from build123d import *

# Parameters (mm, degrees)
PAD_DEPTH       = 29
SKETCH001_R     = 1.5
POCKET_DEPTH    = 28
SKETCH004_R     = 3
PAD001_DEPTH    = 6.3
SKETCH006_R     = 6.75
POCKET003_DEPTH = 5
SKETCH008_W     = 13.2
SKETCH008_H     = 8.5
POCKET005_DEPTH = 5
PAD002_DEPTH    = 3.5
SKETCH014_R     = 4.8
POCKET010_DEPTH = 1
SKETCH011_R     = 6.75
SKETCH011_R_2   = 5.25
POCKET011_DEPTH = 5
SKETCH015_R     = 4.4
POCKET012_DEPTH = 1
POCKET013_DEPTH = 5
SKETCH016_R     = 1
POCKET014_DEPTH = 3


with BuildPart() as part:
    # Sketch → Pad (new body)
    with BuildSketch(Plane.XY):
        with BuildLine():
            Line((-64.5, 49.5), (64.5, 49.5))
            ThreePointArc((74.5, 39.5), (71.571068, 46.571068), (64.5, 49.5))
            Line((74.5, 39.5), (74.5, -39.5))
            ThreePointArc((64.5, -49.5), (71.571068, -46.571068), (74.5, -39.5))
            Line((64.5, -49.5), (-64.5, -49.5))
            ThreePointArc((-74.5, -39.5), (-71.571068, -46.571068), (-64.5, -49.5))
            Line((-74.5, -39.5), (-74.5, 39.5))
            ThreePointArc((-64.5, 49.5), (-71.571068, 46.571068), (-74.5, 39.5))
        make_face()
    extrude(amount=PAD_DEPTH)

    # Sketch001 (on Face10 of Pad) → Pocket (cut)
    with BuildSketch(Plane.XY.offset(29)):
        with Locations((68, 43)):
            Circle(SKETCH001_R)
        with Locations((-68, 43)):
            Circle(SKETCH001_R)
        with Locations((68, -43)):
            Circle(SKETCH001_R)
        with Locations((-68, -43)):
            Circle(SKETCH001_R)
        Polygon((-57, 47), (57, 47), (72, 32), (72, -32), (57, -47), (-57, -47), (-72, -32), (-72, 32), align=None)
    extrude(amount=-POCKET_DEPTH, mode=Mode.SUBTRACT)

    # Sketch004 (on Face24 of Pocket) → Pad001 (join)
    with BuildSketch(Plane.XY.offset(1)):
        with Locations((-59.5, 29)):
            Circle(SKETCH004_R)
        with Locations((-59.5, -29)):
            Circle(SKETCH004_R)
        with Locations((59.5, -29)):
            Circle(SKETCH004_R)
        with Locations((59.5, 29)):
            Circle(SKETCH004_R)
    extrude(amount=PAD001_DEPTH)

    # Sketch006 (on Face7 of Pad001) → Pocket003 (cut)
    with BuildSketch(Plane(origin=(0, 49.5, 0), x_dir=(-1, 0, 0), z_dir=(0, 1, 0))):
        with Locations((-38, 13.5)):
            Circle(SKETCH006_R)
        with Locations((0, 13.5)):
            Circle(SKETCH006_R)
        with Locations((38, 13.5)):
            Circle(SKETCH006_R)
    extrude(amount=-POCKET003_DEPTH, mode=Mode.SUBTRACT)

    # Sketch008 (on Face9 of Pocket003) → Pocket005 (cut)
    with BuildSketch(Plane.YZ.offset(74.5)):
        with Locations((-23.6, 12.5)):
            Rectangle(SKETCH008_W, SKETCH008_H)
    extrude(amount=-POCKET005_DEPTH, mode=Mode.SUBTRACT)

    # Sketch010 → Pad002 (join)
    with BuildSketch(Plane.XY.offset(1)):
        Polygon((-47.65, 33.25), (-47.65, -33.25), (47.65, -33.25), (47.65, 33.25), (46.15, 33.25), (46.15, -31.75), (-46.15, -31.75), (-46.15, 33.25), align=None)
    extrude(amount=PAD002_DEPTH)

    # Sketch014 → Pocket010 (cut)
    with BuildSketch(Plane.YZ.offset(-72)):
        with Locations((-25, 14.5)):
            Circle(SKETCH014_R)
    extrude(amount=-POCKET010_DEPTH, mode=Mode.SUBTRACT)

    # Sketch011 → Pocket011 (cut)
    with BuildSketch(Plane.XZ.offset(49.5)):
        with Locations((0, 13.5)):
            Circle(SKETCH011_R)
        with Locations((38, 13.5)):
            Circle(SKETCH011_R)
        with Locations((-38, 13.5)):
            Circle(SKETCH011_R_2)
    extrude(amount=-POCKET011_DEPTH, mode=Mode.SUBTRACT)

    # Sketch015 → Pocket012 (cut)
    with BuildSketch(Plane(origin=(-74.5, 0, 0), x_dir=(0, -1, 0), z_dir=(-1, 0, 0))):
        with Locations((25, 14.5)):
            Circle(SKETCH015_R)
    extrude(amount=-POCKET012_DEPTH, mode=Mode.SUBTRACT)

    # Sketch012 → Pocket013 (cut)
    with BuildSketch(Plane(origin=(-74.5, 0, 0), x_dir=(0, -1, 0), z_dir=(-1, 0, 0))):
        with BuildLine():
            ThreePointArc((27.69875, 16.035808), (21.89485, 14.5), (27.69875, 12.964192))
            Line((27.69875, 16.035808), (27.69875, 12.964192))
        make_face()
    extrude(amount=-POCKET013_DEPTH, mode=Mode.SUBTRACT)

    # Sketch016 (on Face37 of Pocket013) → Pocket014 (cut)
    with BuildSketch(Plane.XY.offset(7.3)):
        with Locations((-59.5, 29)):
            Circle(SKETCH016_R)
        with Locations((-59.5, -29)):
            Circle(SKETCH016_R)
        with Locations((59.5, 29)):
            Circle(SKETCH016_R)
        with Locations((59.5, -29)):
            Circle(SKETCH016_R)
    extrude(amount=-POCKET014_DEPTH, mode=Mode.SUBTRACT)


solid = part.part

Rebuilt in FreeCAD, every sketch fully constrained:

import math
import FreeCAD as App
import Part
import Sketcher

doc = App.newDocument("Part")
body = doc.addObject("PartDesign::Body", "Body")

# Sketch on XY plane
sketch1 = doc.addObject("Sketcher::SketchObject", "Sketch")
body.addObject(sketch1)
sketch1.AttachmentSupport = (doc.XY_Plane, [""])
sketch1.MapMode = "FlatFace"
sketch1.addGeometry([
    Part.LineSegment(App.Vector(64, 50, 0), App.Vector(-64, 50, 0)),  # 0
    Part.ArcOfCircle(Part.Circle(App.Vector(-65, 40, 0), App.Vector(0, 0, 1), 10), math.radians(90), math.radians(180)),  # 1
    Part.LineSegment(App.Vector(-74, 40, 0), App.Vector(-74, -40, 0)),  # 2
    Part.ArcOfCircle(Part.Circle(App.Vector(-65, -40, 0), App.Vector(0, 0, 1), 10), math.radians(180), math.radians(270)),  # 3
    Part.LineSegment(App.Vector(-64, -50, 0), App.Vector(64, -50, 0)),  # 4
    Part.ArcOfCircle(Part.Circle(App.Vector(65, -40, 0), App.Vector(0, 0, 1), 10), math.radians(-90), math.radians(0)),  # 5
    Part.LineSegment(App.Vector(74, -40, 0), App.Vector(74, 40, 0)),  # 6
    Part.ArcOfCircle(Part.Circle(App.Vector(65, 40, 0), App.Vector(0, 0, 1), 10), math.radians(0), math.radians(90)),  # 7
], False)
sketch1.addConstraint([
    Sketcher.Constraint("Tangent", 0, 2, 1, 1),
    Sketcher.Constraint("Tangent", 1, 2, 2, 1),
    Sketcher.Constraint("Tangent", 2, 2, 3, 1),
    Sketcher.Constraint("Tangent", 3, 2, 4, 1),
    Sketcher.Constraint("Tangent", 4, 2, 5, 1),
    Sketcher.Constraint("Tangent", 5, 2, 6, 1),
    Sketcher.Constraint("Tangent", 6, 2, 7, 1),
    Sketcher.Constraint("Tangent", 7, 2, 0, 1),
    Sketcher.Constraint("Horizontal", 0),
    Sketcher.Constraint("Vertical", 2),
    Sketcher.Constraint("Horizontal", 4),
    Sketcher.Constraint("Vertical", 6),
    Sketcher.Constraint("Equal", 1, 3),
    Sketcher.Constraint("Equal", 3, 5),
    Sketcher.Constraint("Equal", 5, 7),
    Sketcher.Constraint("Symmetric", 1, 3, 5, 3, -1, 1),
    Sketcher.Constraint("Radius", 1, 9.999999),
    Sketcher.Constraint("DistanceX", 0, 2, 0, 1, 129.0),
    Sketcher.Constraint("DistanceY", 2, 2, 2, 1, 79.0),
])
pad1 = doc.addObject("PartDesign::Pad", "Pad")
body.addObject(pad1)
pad1.Profile = sketch1
pad1.Length = 29

# Sketch on XY plane
sketch2 = doc.addObject("Sketcher::SketchObject", "Sketch001")
body.addObject(sketch2)
sketch2.AttachmentSupport = (doc.XY_Plane, [""])
sketch2.MapMode = "FlatFace"
sketch2.AttachmentOffset = App.Placement(App.Vector(0, 0, 29), App.Rotation())
sketch2.addGeometry([
    Part.Circle(App.Vector(68, 43, 0), App.Vector(0, 0, 1), 1.5),  # 0
    Part.Circle(App.Vector(-68, 43, 0), App.Vector(0, 0, 1), 1.5),  # 1
    Part.Circle(App.Vector(68, -43, 0), App.Vector(0, 0, 1), 1.5),  # 2
    Part.Circle(App.Vector(-68, -43, 0), App.Vector(0, 0, 1), 1.5),  # 3
    Part.LineSegment(App.Vector(57, 47, 0), App.Vector(-57, 47, 0)),  # 4
    Part.LineSegment(App.Vector(-57, 47, 0), App.Vector(-72, 32, 0)),  # 5
    Part.LineSegment(App.Vector(-72, 32, 0), App.Vector(-72, -32, 0)),  # 6
    Part.LineSegment(App.Vector(-72, -32, 0), App.Vector(-57, -47, 0)),  # 7
    Part.LineSegment(App.Vector(-57, -47, 0), App.Vector(57, -47, 0)),  # 8
    Part.LineSegment(App.Vector(57, -47, 0), App.Vector(72, -32, 0)),  # 9
    Part.LineSegment(App.Vector(72, -32, 0), App.Vector(72, 32, 0)),  # 10
    Part.LineSegment(App.Vector(72, 32, 0), App.Vector(57, 47, 0)),  # 11
], False)
sketch2.addConstraint([
    Sketcher.Constraint("Coincident", 4, 2, 5, 1),
    Sketcher.Constraint("Coincident", 5, 2, 6, 1),
    Sketcher.Constraint("Coincident", 6, 2, 7, 1),
    Sketcher.Constraint("Coincident", 7, 2, 8, 1),
    Sketcher.Constraint("Coincident", 8, 2, 9, 1),
    Sketcher.Constraint("Coincident", 9, 2, 10, 1),
    Sketcher.Constraint("Coincident", 10, 2, 11, 1),
    Sketcher.Constraint("Coincident", 11, 2, 4, 1),
    Sketcher.Constraint("Horizontal", 4),
    Sketcher.Constraint("Vertical", 6),
    Sketcher.Constraint("Horizontal", 8),
    Sketcher.Constraint("Vertical", 10),
    Sketcher.Constraint("Equal", 0, 1),
    Sketcher.Constraint("Equal", 1, 2),
    Sketcher.Constraint("Equal", 2, 3),
    Sketcher.Constraint("Symmetric", 1, 3, 2, 3, -1, 1),
    Sketcher.Constraint("Symmetric", 0, 3, 3, 3, -1, 1),
    Sketcher.Constraint("Symmetric", 4, 2, 8, 2, -1, 1),
    Sketcher.Constraint("Symmetric", 5, 2, 9, 2, -1, 1),
    Sketcher.Constraint("Symmetric", 0, 3, 1, 3, -2),
    Sketcher.Constraint("Perpendicular", 5, 7),
    Sketcher.Constraint("Perpendicular", 9, 11),
    Sketcher.Constraint("Horizontal", 6, 2, 9, 2),
    Sketcher.Constraint("Horizontal", 5, 2, 10, 2),
    Sketcher.Constraint("Vertical", 4, 2, 7, 2),
    Sketcher.Constraint("Diameter", 0, 3.0),
    Sketcher.Constraint("DistanceX", 4, 2, 4, 1, 114.0),
    Sketcher.Constraint("DistanceY", 6, 2, 6, 1, 64.0),
    Sketcher.Constraint("DistanceX", -1, 1, 0, 3, 68.0),
    Sketcher.Constraint("DistanceY", -1, 1, 0, 3, 43.0),
    Sketcher.Constraint("DistanceY", -1, 1, 4, 2, 47.0),
])
pocket1 = doc.addObject("PartDesign::Pocket", "Pocket")
body.addObject(pocket1)
pocket1.Profile = sketch2
pocket1.Length = 28

# Sketch on XY plane
sketch3 = doc.addObject("Sketcher::SketchObject", "Sketch002")
body.addObject(sketch3)
sketch3.AttachmentSupport = (doc.XY_Plane, [""])
sketch3.MapMode = "FlatFace"
sketch3.AttachmentOffset = App.Placement(App.Vector(0, 0, 1), App.Rotation())
sketch3.addGeometry([
    Part.Circle(App.Vector(-59.5, 29, 0), App.Vector(0, 0, 1), 3),
    Part.Circle(App.Vector(-59.5, -29, 0), App.Vector(0, 0, 1), 3),
    Part.Circle(App.Vector(59.5, -29, 0), App.Vector(0, 0, 1), 3),
    Part.Circle(App.Vector(59.5, 29, 0), App.Vector(0, 0, 1), 3),
], False)
sketch3.addConstraint([
    Sketcher.Constraint("Equal", 0, 1),
    Sketcher.Constraint("Equal", 1, 2),
    Sketcher.Constraint("Equal", 2, 3),
    Sketcher.Constraint("Symmetric", 0, 3, 2, 3, -1, 1),
    Sketcher.Constraint("Symmetric", 1, 3, 3, 3, -1, 1),
    Sketcher.Constraint("Symmetric", 1, 3, 2, 3, -2),
    Sketcher.Constraint("Diameter", 0, 6.0),
    Sketcher.Constraint("DistanceY", -1, 1, 0, 3, 29.0),
    Sketcher.Constraint("DistanceX", 1, 3, 2, 3, 119.0),
])
pad2 = doc.addObject("PartDesign::Pad", "Pad001")
body.addObject(pad2)
pad2.Profile = sketch3
pad2.Length = 6.3

# Sketch on XZ plane
sketch4 = doc.addObject("Sketcher::SketchObject", "Sketch003")
body.addObject(sketch4)
sketch4.AttachmentSupport = (doc.XZ_Plane, [""])
sketch4.MapMode = "FlatFace"
sketch4.AttachmentOffset = App.Placement(App.Vector(0, 0, -49.5), App.Rotation())
sketch4.addGeometry([
    Part.Circle(App.Vector(38, 14, 0), App.Vector(0, 0, 1), 7),
    Part.Circle(App.Vector(0, 14, 0), App.Vector(0, 0, 1), 7),
    Part.Circle(App.Vector(-38, 14, 0), App.Vector(0, 0, 1), 7),
], False)
sketch4.addConstraint([
    Sketcher.Constraint("Equal", 0, 1),
    Sketcher.Constraint("Equal", 1, 2),
    Sketcher.Constraint("Symmetric", 0, 3, 2, 3, -2),
    Sketcher.Constraint("PointOnObject", 1, 3, -2),
    Sketcher.Constraint("Horizontal", 0, 3, 1, 3),
    Sketcher.Constraint("Diameter", 0, 13.5),
    Sketcher.Constraint("DistanceX", -1, 1, 0, 3, 38.0),
    Sketcher.Constraint("DistanceY", -1, 1, 0, 3, 13.5),
])
pocket2 = doc.addObject("PartDesign::Pocket", "Pocket001")
body.addObject(pocket2)
pocket2.Profile = sketch4
pocket2.Length = 5
pocket2.Reversed = True

# Sketch on YZ plane
sketch5 = doc.addObject("Sketcher::SketchObject", "Sketch004")
body.addObject(sketch5)
sketch5.AttachmentSupport = (doc.YZ_Plane, [""])
sketch5.MapMode = "FlatFace"
sketch5.AttachmentOffset = App.Placement(App.Vector(0, 0, 74.5), App.Rotation())
sketch5.addGeometry([
    Part.LineSegment(App.Vector(-30, 17, 0), App.Vector(-30, 8, 0)),
    Part.LineSegment(App.Vector(-30, 8, 0), App.Vector(-17, 8, 0)),
    Part.LineSegment(App.Vector(-17, 8, 0), App.Vector(-17, 17, 0)),
    Part.LineSegment(App.Vector(-17, 17, 0), App.Vector(-30, 17, 0)),
], False)
sketch5.addConstraint([
    Sketcher.Constraint("Coincident", 0, 2, 1, 1),
    Sketcher.Constraint("Coincident", 1, 2, 2, 1),
    Sketcher.Constraint("Coincident", 2, 2, 3, 1),
    Sketcher.Constraint("Coincident", 3, 2, 0, 1),
    Sketcher.Constraint("Vertical", 0),
    Sketcher.Constraint("Horizontal", 1),
    Sketcher.Constraint("Vertical", 2),
    Sketcher.Constraint("Horizontal", 3),
    Sketcher.Constraint("DistanceX", 1, 1, 1, 2, 13.2),
    Sketcher.Constraint("DistanceY", 0, 2, 0, 1, 8.5),
    Sketcher.Constraint("DistanceX", 1, 2, -1, 1, 17.0),
    Sketcher.Constraint("DistanceY", -1, 1, 0, 2, 8.25),
])
pocket3 = doc.addObject("PartDesign::Pocket", "Pocket002")
body.addObject(pocket3)
pocket3.Profile = sketch5
pocket3.Length = 5

# Sketch on XY plane
sketch6 = doc.addObject("Sketcher::SketchObject", "Sketch005")
body.addObject(sketch6)
sketch6.AttachmentSupport = (doc.XY_Plane, [""])
sketch6.MapMode = "FlatFace"
sketch6.AttachmentOffset = App.Placement(App.Vector(0, 0, 1), App.Rotation())
sketch6.addGeometry([
    Part.LineSegment(App.Vector(-47.6, 33.2, 0), App.Vector(-47.6, -33.2, 0)),  # 0
    Part.LineSegment(App.Vector(-47.6, -33.2, 0), App.Vector(47.6, -33.2, 0)),  # 1
    Part.LineSegment(App.Vector(47.6, -33.2, 0), App.Vector(47.6, 33.2, 0)),  # 2
    Part.LineSegment(App.Vector(47.6, 33.2, 0), App.Vector(46.1, 33.2, 0)),  # 3
    Part.LineSegment(App.Vector(46.1, 33.2, 0), App.Vector(46.1, -31.8, 0)),  # 4
    Part.LineSegment(App.Vector(46.1, -31.8, 0), App.Vector(-46.1, -31.8, 0)),  # 5
    Part.LineSegment(App.Vector(-46.1, -31.8, 0), App.Vector(-46.1, 33.2, 0)),  # 6
    Part.LineSegment(App.Vector(-46.1, 33.2, 0), App.Vector(-47.6, 33.2, 0)),  # 7
], False)
sketch6.addConstraint([
    Sketcher.Constraint("Coincident", 0, 2, 1, 1),
    Sketcher.Constraint("Coincident", 1, 2, 2, 1),
    Sketcher.Constraint("Coincident", 2, 2, 3, 1),
    Sketcher.Constraint("Coincident", 3, 2, 4, 1),
    Sketcher.Constraint("Coincident", 4, 2, 5, 1),
    Sketcher.Constraint("Coincident", 5, 2, 6, 1),
    Sketcher.Constraint("Coincident", 6, 2, 7, 1),
    Sketcher.Constraint("Coincident", 7, 2, 0, 1),
    Sketcher.Constraint("Vertical", 0),
    Sketcher.Constraint("Horizontal", 1),
    Sketcher.Constraint("Vertical", 2),
    Sketcher.Constraint("Horizontal", 3),
    Sketcher.Constraint("Vertical", 4),
    Sketcher.Constraint("Horizontal", 5),
    Sketcher.Constraint("Vertical", 6),
    Sketcher.Constraint("Horizontal", 7),
    Sketcher.Constraint("Symmetric", 0, 2, 2, 2, -1, 1),
    Sketcher.Constraint("Symmetric", 3, 2, 6, 2, -2),
    Sketcher.Constraint("DistanceY", 4, 2, 4, 1, 65.0),
    Sketcher.Constraint("DistanceX", 1, 1, 1, 2, 95.3),
    Sketcher.Constraint("DistanceX", 3, 2, 3, 1, 1.5),
    Sketcher.Constraint("DistanceY", 0, 2, 0, 1, 66.5),
])
pad3 = doc.addObject("PartDesign::Pad", "Pad002")
body.addObject(pad3)
pad3.Profile = sketch6
pad3.Length = 3.5

# Sketch on YZ plane
sketch7 = doc.addObject("Sketcher::SketchObject", "Sketch006")
body.addObject(sketch7)
sketch7.AttachmentSupport = (doc.YZ_Plane, [""])
sketch7.MapMode = "FlatFace"
sketch7.AttachmentOffset = App.Placement(App.Vector(0, 0, -72), App.Rotation())
sketch7.addGeometry(Part.Circle(App.Vector(-25, 14.5, 0), App.Vector(0, 0, 1), 4.8), False)
sketch7.addConstraint([
    Sketcher.Constraint("Diameter", 0, 9.6),
    Sketcher.Constraint("DistanceX", 0, 3, -1, 1, 25.0),
    Sketcher.Constraint("DistanceY", -1, 1, 0, 3, 14.5),
])
pocket4 = doc.addObject("PartDesign::Pocket", "Pocket003")
body.addObject(pocket4)
pocket4.Profile = sketch7
pocket4.Length = 1

# Sketch on XZ plane
sketch8 = doc.addObject("Sketcher::SketchObject", "Sketch007")
body.addObject(sketch8)
sketch8.AttachmentSupport = (doc.XZ_Plane, [""])
sketch8.MapMode = "FlatFace"
sketch8.AttachmentOffset = App.Placement(App.Vector(0, 0, 49.5), App.Rotation())
sketch8.addGeometry([
    Part.Circle(App.Vector(0, 14, 0), App.Vector(0, 0, 1), 7),
    Part.Circle(App.Vector(38, 14, 0), App.Vector(0, 0, 1), 7),
    Part.Circle(App.Vector(-38, 14, 0), App.Vector(0, 0, 1), 5),
], False)
sketch8.addConstraint([
    Sketcher.Constraint("Equal", 0, 1),
    Sketcher.Constraint("Symmetric", 1, 3, 2, 3, -2),
    Sketcher.Constraint("PointOnObject", 0, 3, -2),
    Sketcher.Constraint("Horizontal", 0, 3, 1, 3),
    Sketcher.Constraint("Diameter", 0, 13.5),
    Sketcher.Constraint("Diameter", 2, 10.5),
    Sketcher.Constraint("DistanceX", -1, 1, 1, 3, 38.0),
    Sketcher.Constraint("DistanceY", -1, 1, 0, 3, 13.5),
])
pocket5 = doc.addObject("PartDesign::Pocket", "Pocket004")
body.addObject(pocket5)
pocket5.Profile = sketch8
pocket5.Length = 5

# Sketch on YZ plane
sketch9 = doc.addObject("Sketcher::SketchObject", "Sketch008")
body.addObject(sketch9)
sketch9.AttachmentSupport = (doc.YZ_Plane, [""])
sketch9.MapMode = "FlatFace"
sketch9.AttachmentOffset = App.Placement(App.Vector(0, 0, -74.5), App.Rotation())
sketch9.addGeometry(Part.Circle(App.Vector(-25, 14.5, 0), App.Vector(0, 0, 1), 4.4), False)
sketch9.addConstraint([
    Sketcher.Constraint("Diameter", 0, 8.8),
    Sketcher.Constraint("DistanceX", 0, 3, -1, 1, 25.0),
    Sketcher.Constraint("DistanceY", -1, 1, 0, 3, 14.5),
])
pocket6 = doc.addObject("PartDesign::Pocket", "Pocket005")
body.addObject(pocket6)
pocket6.Profile = sketch9
pocket6.Length = 1
pocket6.Reversed = True

# Sketch on YZ plane
sketch10 = doc.addObject("Sketcher::SketchObject", "Sketch009")
body.addObject(sketch10)
sketch10.AttachmentSupport = (doc.YZ_Plane, [""])
sketch10.MapMode = "FlatFace"
sketch10.AttachmentOffset = App.Placement(App.Vector(0, 0, -74.5), App.Rotation())
sketch10.addGeometry([
    Part.ArcOfCircle(Part.Circle(App.Vector(-25, 14.5, 0), App.Vector(0, 0, 1), 3.1), math.radians(-150), math.radians(150)),
    Part.LineSegment(App.Vector(-27.7, 13, 0), App.Vector(-27.7, 16, 0)),
], False)
sketch10.addConstraint([
    Sketcher.Constraint("Coincident", 0, 1, 1, 1),
    Sketcher.Constraint("Coincident", 1, 2, 0, 2),
    Sketcher.Constraint("Vertical", 1),
    Sketcher.Constraint("DistanceX", 0, 3, -1, 1, 25.0),
    Sketcher.Constraint("DistanceY", -1, 1, 0, 3, 14.5),
    Sketcher.Constraint("Radius", 0, 3.10515),
    Sketcher.Constraint("DistanceY", 1, 1, 1, 2, 3.071616),
])
pocket7 = doc.addObject("PartDesign::Pocket", "Pocket006")
body.addObject(pocket7)
pocket7.Profile = sketch10
pocket7.Length = 5
pocket7.Reversed = True

# Sketch on XY plane
sketch11 = doc.addObject("Sketcher::SketchObject", "Sketch010")
body.addObject(sketch11)
sketch11.AttachmentSupport = (doc.XY_Plane, [""])
sketch11.MapMode = "FlatFace"
sketch11.AttachmentOffset = App.Placement(App.Vector(0, 0, 7.3), App.Rotation())
sketch11.addGeometry([
    Part.Circle(App.Vector(-59.5, 29, 0), App.Vector(0, 0, 1), 1),
    Part.Circle(App.Vector(-59.5, -29, 0), App.Vector(0, 0, 1), 1),
    Part.Circle(App.Vector(59.5, 29, 0), App.Vector(0, 0, 1), 1),
    Part.Circle(App.Vector(59.5, -29, 0), App.Vector(0, 0, 1), 1),
], False)
sketch11.addConstraint([
    Sketcher.Constraint("Equal", 0, 1),
    Sketcher.Constraint("Equal", 1, 2),
    Sketcher.Constraint("Equal", 2, 3),
    Sketcher.Constraint("Symmetric", 1, 3, 2, 3, -1, 1),
    Sketcher.Constraint("Symmetric", 0, 3, 3, 3, -1, 1),
    Sketcher.Constraint("Symmetric", 0, 3, 2, 3, -2),
    Sketcher.Constraint("Diameter", 0, 2.0),
    Sketcher.Constraint("DistanceY", -1, 1, 0, 3, 29.0),
    Sketcher.Constraint("DistanceX", 0, 3, 2, 3, 119.0),
])
pocket8 = doc.addObject("PartDesign::Pocket", "Pocket007")
body.addObject(pocket8)
pocket8.Profile = sketch11
pocket8.Length = 3

doc.recompute()
